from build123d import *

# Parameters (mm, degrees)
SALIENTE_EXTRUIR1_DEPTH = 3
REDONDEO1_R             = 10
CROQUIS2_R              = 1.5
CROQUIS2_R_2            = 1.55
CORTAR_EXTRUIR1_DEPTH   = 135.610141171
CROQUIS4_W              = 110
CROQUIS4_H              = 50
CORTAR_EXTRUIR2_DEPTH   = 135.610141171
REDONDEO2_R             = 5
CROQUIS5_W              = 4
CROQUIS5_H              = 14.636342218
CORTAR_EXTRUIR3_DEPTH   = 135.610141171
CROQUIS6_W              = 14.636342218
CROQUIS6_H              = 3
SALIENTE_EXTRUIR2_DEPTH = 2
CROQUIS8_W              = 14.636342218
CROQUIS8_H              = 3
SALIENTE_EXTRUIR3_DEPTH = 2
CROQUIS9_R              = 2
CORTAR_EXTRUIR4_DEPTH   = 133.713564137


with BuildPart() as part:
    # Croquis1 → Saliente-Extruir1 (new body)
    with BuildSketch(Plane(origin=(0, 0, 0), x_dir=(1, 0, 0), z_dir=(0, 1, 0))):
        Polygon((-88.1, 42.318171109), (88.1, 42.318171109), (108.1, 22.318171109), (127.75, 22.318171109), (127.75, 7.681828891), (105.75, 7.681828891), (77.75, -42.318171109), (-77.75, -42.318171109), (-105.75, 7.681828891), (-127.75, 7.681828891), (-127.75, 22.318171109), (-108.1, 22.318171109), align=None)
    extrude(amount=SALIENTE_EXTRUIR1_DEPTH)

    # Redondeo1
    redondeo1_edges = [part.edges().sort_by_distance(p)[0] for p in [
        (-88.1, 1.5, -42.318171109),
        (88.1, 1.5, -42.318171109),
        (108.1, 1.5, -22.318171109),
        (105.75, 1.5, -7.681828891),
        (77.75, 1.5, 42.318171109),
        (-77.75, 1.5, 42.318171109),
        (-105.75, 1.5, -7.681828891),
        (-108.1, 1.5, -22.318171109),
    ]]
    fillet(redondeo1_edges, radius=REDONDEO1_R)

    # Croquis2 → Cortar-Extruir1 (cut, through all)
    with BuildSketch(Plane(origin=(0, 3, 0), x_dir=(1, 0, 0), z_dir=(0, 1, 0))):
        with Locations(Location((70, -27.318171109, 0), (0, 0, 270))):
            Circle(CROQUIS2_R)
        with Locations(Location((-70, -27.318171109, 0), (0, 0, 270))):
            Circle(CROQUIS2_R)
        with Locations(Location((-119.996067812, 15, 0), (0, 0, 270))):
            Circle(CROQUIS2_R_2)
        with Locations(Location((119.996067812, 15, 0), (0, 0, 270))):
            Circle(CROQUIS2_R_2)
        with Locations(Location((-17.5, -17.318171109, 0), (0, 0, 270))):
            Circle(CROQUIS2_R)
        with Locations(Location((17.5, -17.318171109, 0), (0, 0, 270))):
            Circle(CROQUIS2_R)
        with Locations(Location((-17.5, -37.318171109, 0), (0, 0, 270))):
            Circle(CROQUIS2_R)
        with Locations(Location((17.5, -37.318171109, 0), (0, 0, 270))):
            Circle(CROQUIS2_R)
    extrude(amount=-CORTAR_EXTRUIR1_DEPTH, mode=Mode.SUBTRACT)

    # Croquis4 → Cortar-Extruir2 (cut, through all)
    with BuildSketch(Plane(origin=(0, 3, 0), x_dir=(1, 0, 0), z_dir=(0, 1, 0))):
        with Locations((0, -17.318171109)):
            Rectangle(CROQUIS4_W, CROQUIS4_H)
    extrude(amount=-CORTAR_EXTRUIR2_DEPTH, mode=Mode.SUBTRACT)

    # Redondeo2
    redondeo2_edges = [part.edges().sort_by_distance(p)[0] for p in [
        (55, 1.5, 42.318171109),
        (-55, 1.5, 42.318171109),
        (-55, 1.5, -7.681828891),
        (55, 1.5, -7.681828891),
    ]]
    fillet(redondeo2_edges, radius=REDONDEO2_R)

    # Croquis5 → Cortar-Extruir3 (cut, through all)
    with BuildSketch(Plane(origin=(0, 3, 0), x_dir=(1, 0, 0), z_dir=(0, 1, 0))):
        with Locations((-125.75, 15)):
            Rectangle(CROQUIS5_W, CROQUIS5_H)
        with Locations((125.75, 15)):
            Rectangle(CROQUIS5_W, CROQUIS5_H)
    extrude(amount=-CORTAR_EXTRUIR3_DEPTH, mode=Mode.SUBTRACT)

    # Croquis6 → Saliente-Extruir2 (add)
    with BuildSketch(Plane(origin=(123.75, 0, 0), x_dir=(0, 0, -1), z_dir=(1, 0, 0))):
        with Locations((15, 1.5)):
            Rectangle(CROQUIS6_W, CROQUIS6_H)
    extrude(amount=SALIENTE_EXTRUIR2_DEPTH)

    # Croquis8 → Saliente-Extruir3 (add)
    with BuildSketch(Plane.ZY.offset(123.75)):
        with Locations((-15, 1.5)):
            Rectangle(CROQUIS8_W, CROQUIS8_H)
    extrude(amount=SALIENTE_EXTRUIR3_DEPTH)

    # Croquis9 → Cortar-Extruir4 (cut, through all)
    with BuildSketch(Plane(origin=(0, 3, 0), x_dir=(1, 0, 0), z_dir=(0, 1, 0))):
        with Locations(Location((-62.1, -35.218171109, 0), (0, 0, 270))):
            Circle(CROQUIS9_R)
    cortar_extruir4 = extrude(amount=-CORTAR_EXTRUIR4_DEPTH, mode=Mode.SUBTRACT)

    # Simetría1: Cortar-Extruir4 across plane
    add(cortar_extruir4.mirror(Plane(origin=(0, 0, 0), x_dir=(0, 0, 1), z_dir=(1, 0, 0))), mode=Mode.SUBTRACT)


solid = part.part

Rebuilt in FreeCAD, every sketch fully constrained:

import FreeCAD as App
import Part
import Sketcher

V = App.Vector


def edges_at(feature, points):
    """Names of the edges that pass closest to the given points."""
    edges = feature.Shape.Edges
    near = lambda p: min(range(len(edges)), key=lambda i: edges[i].distToShape(Part.Vertex(*p))[0])
    return sorted({f"Edge{near(p) + 1}" for p in points})

doc = App.newDocument("Part")
body = doc.addObject("PartDesign::Body", "Body")

# Sketch on XZ plane
sketch1 = body.newObject("Sketcher::SketchObject", "Sketch")
sketch1.AttachmentSupport = (doc.getObject("XZ_Plane"), [""])
sketch1.MapMode = "FlatFace"
sketch1.addGeometry([
    Part.LineSegment(V(88, -42, 0), V(-88, -42, 0)),  # 0
    Part.LineSegment(V(-88, -42, 0), V(-108, -22, 0)),  # 1
    Part.LineSegment(V(-108, -22, 0), V(-128, -22, 0)),  # 2
    Part.LineSegment(V(-128, -22, 0), V(-128, -8, 0)),  # 3
    Part.LineSegment(V(-128, -8, 0), V(-106, -8, 0)),  # 4
    Part.LineSegment(V(-106, -8, 0), V(-78, 42, 0)),  # 5
    Part.LineSegment(V(-78, 42, 0), V(78, 42, 0)),  # 6
    Part.LineSegment(V(78, 42, 0), V(106, -8, 0)),  # 7
    Part.LineSegment(V(106, -8, 0), V(128, -8, 0)),  # 8
    Part.LineSegment(V(128, -8, 0), V(128, -22, 0)),  # 9
    Part.LineSegment(V(128, -22, 0), V(108, -22, 0)),  # 10
    Part.LineSegment(V(108, -22, 0), V(88, -42, 0)),  # 11
], False)
sketch1.addConstraint([
    Sketcher.Constraint("Coincident", 0, 2, 1, 1),
    Sketcher.Constraint("Coincident", 1, 2, 2, 1),
    Sketcher.Constraint("Coincident", 2, 2, 3, 1),
    Sketcher.Constraint("Coincident", 3, 2, 4, 1),
    Sketcher.Constraint("Coincident", 4, 2, 5, 1),
    Sketcher.Constraint("Coincident", 5, 2, 6, 1),
    Sketcher.Constraint("Coincident", 6, 2, 7, 1),
    Sketcher.Constraint("Coincident", 7, 2, 8, 1),
    Sketcher.Constraint("Coincident", 8, 2, 9, 1),
    Sketcher.Constraint("Coincident", 9, 2, 10, 1),
    Sketcher.Constraint("Coincident", 10, 2, 11, 1),
    Sketcher.Constraint("Coincident", 11, 2, 0, 1),
    Sketcher.Constraint("Horizontal", 0),
    Sketcher.Constraint("Horizontal", 2),
    Sketcher.Constraint("Vertical", 3),
    Sketcher.Constraint("Horizontal", 4),
    Sketcher.Constraint("Horizontal", 6),
    Sketcher.Constraint("Horizontal", 8),
    Sketcher.Constraint("Vertical", 9),
    Sketcher.Constraint("Horizontal", 10),
    Sketcher.Constraint("Symmetric", 4, 2, 7, 2, -2),
    Sketcher.Constraint("Symmetric", 2, 2, 9, 2, -2),
    Sketcher.Constraint("Perpendicular", 1, 11),
    Sketcher.Constraint("Equal", 2, 10),
    Sketcher.Constraint("Equal", 5, 7),
    Sketcher.Constraint("Equal", 1, 11),
    Sketcher.Constraint("DistanceX", 4, 1, 4, 2, 22.0),
    Sketcher.Constraint("DistanceX", 0, 2, 0, 1, 176.2),
    Sketcher.Constraint("DistanceX", 6, 1, 6, 2, 155.5),
    Sketcher.Constraint("DistanceX", 1, 2, 0, 2, 20.0),
    Sketcher.Constraint("DistanceX", 4, 2, 5, 2, 28.0),
    Sketcher.Constraint("DistanceY", 4, 2, 5, 2, 50.0),
    Sketcher.Constraint("DistanceY", 3, 1, 3, 2, 14.636342),
    Sketcher.Constraint("DistanceY", 0, 2, -1, 1, 42.318171),
])
pad1 = body.newObject("PartDesign::Pad", "Pad")
pad1.Profile = sketch1
pad1.Length = 3
pad1.Reversed = True
doc.recompute()

fillet = body.newObject("PartDesign::Fillet", "Fillet")
fillet.Base = (pad1, edges_at(pad1, [
    (-88.1, 1.5, -42.318),
    (88.1, 1.5, -42.318),
    (108.1, 1.5, -22.318),
    (105.75, 1.5, -7.682),
    (77.75, 1.5, 42.318),
    (-77.75, 1.5, 42.318),
    (-105.75, 1.5, -7.682),
    (-108.1, 1.5, -22.318),
]))
fillet.Radius = 10

# Sketch on XZ plane
sketch2 = body.newObject("Sketcher::SketchObject", "Sketch001")
sketch2.AttachmentSupport = (doc.getObject("XZ_Plane"), [""])
sketch2.MapMode = "FlatFace"
sketch2.AttachmentOffset = App.Placement(V(0, 0, -3), App.Rotation())
sketch2.addGeometry([
    Part.Circle(V(70, 27.3, 0), V(0, 0, 1), 1.5),  # 0
    Part.Circle(V(-70, 27.3, 0), V(0, 0, 1), 1.5),  # 1
    Part.Circle(V(-120, -15, 0), V(0, 0, 1), 1.6),  # 2
    Part.Circle(V(120, -15, 0), V(0, 0, 1), 1.6),  # 3
    Part.Circle(V(-17.5, 17.3, 0), V(0, 0, 1), 1.5),  # 4
    Part.Circle(V(17.5, 17.3, 0), V(0, 0, 1), 1.5),  # 5
    Part.Circle(V(-17.5, 37.3, 0), V(0, 0, 1), 1.5),  # 6
    Part.Circle(V(17.5, 37.3, 0), V(0, 0, 1), 1.5),  # 7
], False)
sketch2.addConstraint([
    Sketcher.Constraint("Equal", 0, 1),
    Sketcher.Constraint("Equal", 2, 3),
    Sketcher.Constraint("Equal", 1, 4),
    Sketcher.Constraint("Equal", 4, 5),
    Sketcher.Constraint("Equal", 5, 6),
    Sketcher.Constraint("Equal", 6, 7),
    Sketcher.Constraint("Symmetric", 0, 3, 1, 3, -2),
    Sketcher.Constraint("Symmetric", 2, 3, 3, 3, -2),
    Sketcher.Constraint("Symmetric", 4, 3, 5, 3, -2),
    Sketcher.Constraint("Symmetric", 6, 3, 7, 3, -2),
    Sketcher.Constraint("Vertical", 4, 3, 6, 3),
    Sketcher.Constraint("Diameter", 0, 3.0),
    Sketcher.Constraint("Diameter", 2, 3.1),
    Sketcher.Constraint("DistanceX", -1, 1, 0, 3, 70.0),
    Sketcher.Constraint("DistanceY", 2, 3, -1, 1, 15.0),
    Sketcher.Constraint("DistanceY", 4, 3, 1, 3, 10.0),
    Sketcher.Constraint("DistanceX", 4, 3, 5, 3, 35.0),
    Sketcher.Constraint("DistanceY", 4, 3, 6, 3, 20.0),
    Sketcher.Constraint("DistanceY", -1, 1, 0, 3, 27.318171),
    Sketcher.Constraint("DistanceX", 2, 3, -1, 1, 119.996068),
])
pocket1 = body.newObject("PartDesign::Pocket", "Pocket")
pocket1.Profile = sketch2
pocket1.Type = "ThroughAll"
pocket1.Reversed = True

# Sketch on XZ plane
sketch3 = body.newObject("Sketcher::SketchObject", "Sketch002")
sketch3.AttachmentSupport = (doc.getObject("XZ_Plane"), [""])
sketch3.MapMode = "FlatFace"
sketch3.AttachmentOffset = App.Placement(V(0, 0, -3), App.Rotation())
sketch3.addGeometry([
    Part.LineSegment(V(-55, -8, 0), V(-55, 42, 0)),
    Part.LineSegment(V(-55, 42, 0), V(55, 42, 0)),
    Part.LineSegment(V(55, 42, 0), V(55, -8, 0)),
    Part.LineSegment(V(55, -8, 0), V(-55, -8, 0)),
], False)
sketch3.addConstraint([
    Sketcher.Constraint("Coincident", 0, 2, 1, 1),
    Sketcher.Constraint("Coincident", 1, 2, 2, 1),
    Sketcher.Constraint("Coincident", 2, 2, 3, 1),
    Sketcher.Constraint("Coincident", 3, 2, 0, 1),
    Sketcher.Constraint("Vertical", 0),
    Sketcher.Constraint("Horizontal", 1),
    Sketcher.Constraint("Vertical", 2),
    Sketcher.Constraint("Horizontal", 3),
    Sketcher.Constraint("DistanceX", 1, 1, 1, 2, 110.0),
    Sketcher.Constraint("DistanceY", 0, 1, 0, 2, 50.0),
    Sketcher.Constraint("DistanceX", 0, 2, -1, 1, 55.0),
    Sketcher.Constraint("DistanceY", -1, 1, 0, 2, 42.318171),
])
pocket2 = body.newObject("PartDesign::Pocket", "Pocket001")
pocket2.Profile = sketch3
pocket2.Type = "ThroughAll"
pocket2.Reversed = True
doc.recompute()

fillet2 = body.newObject("PartDesign::Fillet", "Fillet001")
fillet2.Base = (pocket2, edges_at(pocket2, [
    (55, 1.5, 42.318),
    (-55, 1.5, 42.318),
    (-55, 1.5, -7.682),
    (55, 1.5, -7.682),
]))
fillet2.Radius = 5

# Sketch on XZ plane
sketch4 = body.newObject("Sketcher::SketchObject", "Sketch003")
sketch4.AttachmentSupport = (doc.getObject("XZ_Plane"), [""])
sketch4.MapMode = "FlatFace"
sketch4.AttachmentOffset = App.Placement(V(0, 0, -3), App.Rotation())
sketch4.addGeometry([
    Part.LineSegment(V(-127.8, -22.3, 0), V(-127.8, -7.7, 0)),  # 0
    Part.LineSegment(V(-127.8, -7.7, 0), V(-123.8, -7.7, 0)),  # 1
    Part.LineSegment(V(-123.8, -7.7, 0), V(-123.8, -22.3, 0)),  # 2
    Part.LineSegment(V(-123.8, -22.3, 0), V(-127.8, -22.3, 0)),  # 3
    Part.LineSegment(V(123.8, -22.3, 0), V(123.8, -7.7, 0)),  # 4
    Part.LineSegment(V(123.8, -7.7, 0), V(127.8, -7.7, 0)),  # 5
    Part.LineSegment(V(127.8, -7.7, 0), V(127.8, -22.3, 0)),  # 6
    Part.LineSegment(V(127.8, -22.3, 0), V(123.8, -22.3, 0)),  # 7
], False)
sketch4.addConstraint([
    Sketcher.Constraint("Coincident", 0, 2, 1, 1),
    Sketcher.Constraint("Coincident", 1, 2, 2, 1),
    Sketcher.Constraint("Coincident", 2, 2, 3, 1),
    Sketcher.Constraint("Coincident", 3, 2, 0, 1),
    Sketcher.Constraint("Coincident", 4, 2, 5, 1),
    Sketcher.Constraint("Coincident", 5, 2, 6, 1),
    Sketcher.Constraint("Coincident", 6, 2, 7, 1),
    Sketcher.Constraint("Coincident", 7, 2, 4, 1),
    Sketcher.Constraint("Vertical", 0),
    Sketcher.Constraint("Horizontal", 1),
    Sketcher.Constraint("Vertical", 2),
    Sketcher.Constraint("Horizontal", 3),
    Sketcher.Constraint("Vertical", 4),
    Sketcher.Constraint("Horizontal", 5),
    Sketcher.Constraint("Vertical", 6),
    Sketcher.Constraint("Horizontal", 7),
    Sketcher.Constraint("Symmetric", 1, 2, 4, 2, -2),
    Sketcher.Constraint("Symmetric", 3, 2, 6, 2, -2),
    Sketcher.Constraint("DistanceX", 1, 1, 1, 2, 4.0),
    Sketcher.Constraint("DistanceX", 1, 2, 4, 2, 247.5),
    Sketcher.Constraint("DistanceY", 0, 1, 0, 2, 14.636342),
    Sketcher.Constraint("DistanceY", 0, 2, -1, 1, 7.681829),
])
pocket3 = body.newObject("PartDesign::Pocket", "Pocket002")
pocket3.Profile = sketch4
pocket3.Type = "ThroughAll"
pocket3.Reversed = True

# Sketch on YZ plane
sketch5 = body.newObject("Sketcher::SketchObject", "Sketch004")
sketch5.AttachmentSupport = (doc.getObject("YZ_Plane"), [""])
sketch5.MapMode = "FlatFace"
sketch5.AttachmentOffset = App.Placement(V(0, 0, 123.75), App.Rotation())
sketch5.addGeometry([
    Part.LineSegment(V(3, -7.7, 0), V(0, -7.7, 0)),
    Part.LineSegment(V(0, -7.7, 0), V(0, -22.3, 0)),
    Part.LineSegment(V(0, -22.3, 0), V(3, -22.3, 0)),
    Part.LineSegment(V(3, -22.3, 0), V(3, -7.7, 0)),
], False)
sketch5.addConstraint([
    Sketcher.Constraint("Coincident", 0, 2, 1, 1),
    Sketcher.Constraint("Coincident", 1, 2, 2, 1),
    Sketcher.Constraint("Coincident", 2, 2, 3, 1),
    Sketcher.Constraint("Coincident", 3, 2, 0, 1),
    Sketcher.Constraint("Horizontal", 0),
    Sketcher.Constraint("Vertical", 1),
    Sketcher.Constraint("Horizontal", 2),
    Sketcher.Constraint("Vertical", 3),
    Sketcher.Constraint("PointOnObject", 0, 2, -2),
    Sketcher.Constraint("DistanceX", 0, 2, 0, 1, 3.0),
    Sketcher.Constraint("DistanceY", 1, 2, 1, 1, 14.636342),
    Sketcher.Constraint("DistanceY", 0, 2, -1, 1, 7.681829),
])
pad2 = body.newObject("PartDesign::Pad", "Pad001")
pad2.Profile = sketch5
pad2.Length = 2

# Sketch on YZ plane
sketch6 = body.newObject("Sketcher::SketchObject", "Sketch005")
sketch6.AttachmentSupport = (doc.getObject("YZ_Plane"), [""])
sketch6.MapMode = "FlatFace"
sketch6.AttachmentOffset = App.Placement(V(0, 0, -123.75), App.Rotation())
sketch6.addGeometry([
    Part.LineSegment(V(3, -22.3, 0), V(0, -22.3, 0)),
    Part.LineSegment(V(0, -22.3, 0), V(0, -7.7, 0)),
    Part.LineSegment(V(0, -7.7, 0), V(3, -7.7, 0)),
    Part.LineSegment(V(3, -7.7, 0), V(3, -22.3, 0)),
], False)
sketch6.addConstraint([
    Sketcher.Constraint("Coincident", 0, 2, 1, 1),
    Sketcher.Constraint("Coincident", 1, 2, 2, 1),
    Sketcher.Constraint("Coincident", 2, 2, 3, 1),
    Sketcher.Constraint("Coincident", 3, 2, 0, 1),
    Sketcher.Constraint("Horizontal", 0),
    Sketcher.Constraint("Vertical", 1),
    Sketcher.Constraint("Horizontal", 2),
    Sketcher.Constraint("Vertical", 3),
    Sketcher.Constraint("PointOnObject", 0, 2, -2),
    Sketcher.Constraint("DistanceX", 0, 2, 0, 1, 3.0),
    Sketcher.Constraint("DistanceY", 1, 1, 1, 2, 14.636342),
    Sketcher.Constraint("DistanceY", 0, 2, -1, 1, 22.318171),
])
pad3 = body.newObject("PartDesign::Pad", "Pad002")
pad3.Profile = sketch6
pad3.Length = 2
pad3.Reversed = True

# Sketch on XZ plane
sketch7 = body.newObject("Sketcher::SketchObject", "Sketch006")
sketch7.AttachmentSupport = (doc.getObject("XZ_Plane"), [""])
sketch7.MapMode = "FlatFace"
sketch7.AttachmentOffset = App.Placement(V(0, 0, -3), App.Rotation())
sketch7.addGeometry(Part.Circle(V(-62.1, 35.2, 0), V(0, 0, 1), 2), False)
sketch7.addConstraint([
    Sketcher.Constraint("Diameter", 0, 4.0),
    Sketcher.Constraint("DistanceX", 0, 3, -1, 1, 62.1),
    Sketcher.Constraint("DistanceY", -1, 1, 0, 3, 35.218171),
])
pocket4 = body.newObject("PartDesign::Pocket", "Pocket003")
pocket4.Profile = sketch7
pocket4.Type = "ThroughAll"
pocket4.Reversed = True
doc.recompute()

mirrored = body.newObject("PartDesign::Mirrored", "Mirrored")
mirrored.Originals = [pocket4]
mirrored.MirrorPlane = (doc.getObject("YZ_Plane"), [""])
body.Tip = mirrored

doc.recompute()
